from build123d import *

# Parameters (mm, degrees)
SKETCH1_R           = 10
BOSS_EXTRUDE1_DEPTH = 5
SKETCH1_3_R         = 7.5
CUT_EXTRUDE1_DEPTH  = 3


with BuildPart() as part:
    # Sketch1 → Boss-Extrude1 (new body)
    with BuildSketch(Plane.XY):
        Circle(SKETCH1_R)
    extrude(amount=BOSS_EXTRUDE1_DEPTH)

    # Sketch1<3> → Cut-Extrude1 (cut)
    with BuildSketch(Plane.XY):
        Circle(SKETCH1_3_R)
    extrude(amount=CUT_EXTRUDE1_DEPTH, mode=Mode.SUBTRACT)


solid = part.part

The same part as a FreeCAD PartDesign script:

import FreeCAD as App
import Part
import Sketcher

doc = App.newDocument("Part")
body = doc.addObject("PartDesign::Body", "Body")

# Sketch on XY plane
sketch1 = doc.addObject("Sketcher::SketchObject", "Sketch")
body.addObject(sketch1)
sketch1.AttachmentSupport = (doc.XY_Plane, [""])
sketch1.MapMode = "FlatFace"
sketch1.addGeometry(Part.Circle(App.Vector(0, 0, 0), App.Vector(0, 0, 1), 10), False)
sketch1.addConstraint(Sketcher.Constraint("Coincident", 0, 3, -1, 1))
sketch1.addConstraint(Sketcher.Constraint("Diameter", 0, 20.0))
pad1 = doc.addObject("PartDesign::Pad", "Pad")
body.addObject(pad1)
pad1.Profile = sketch1
pad1.Length = 5

# Sketch on XY plane
sketch2 = doc.addObject("Sketcher::SketchObject", "Sketch001")
body.addObject(sketch2)
sketch2.AttachmentSupport = (doc.XY_Plane, [""])
sketch2.MapMode = "FlatFace"
sketch2.addGeometry(Part.Circle(App.Vector(0, 0, 0), App.Vector(0, 0, 1), 7.5), False)
sketch2.addConstraint(Sketcher.Constraint("Coincident", 0, 3, -1, 1))
sketch2.addConstraint(Sketcher.Constraint("Diameter", 0, 15.0))
pocket1 = doc.addObject("PartDesign::Pocket", "Pocket")
body.addObject(pocket1)
pocket1.Profile = sketch2
pocket1.Length = 3
pocket1.Reversed = True

doc.recompute()
